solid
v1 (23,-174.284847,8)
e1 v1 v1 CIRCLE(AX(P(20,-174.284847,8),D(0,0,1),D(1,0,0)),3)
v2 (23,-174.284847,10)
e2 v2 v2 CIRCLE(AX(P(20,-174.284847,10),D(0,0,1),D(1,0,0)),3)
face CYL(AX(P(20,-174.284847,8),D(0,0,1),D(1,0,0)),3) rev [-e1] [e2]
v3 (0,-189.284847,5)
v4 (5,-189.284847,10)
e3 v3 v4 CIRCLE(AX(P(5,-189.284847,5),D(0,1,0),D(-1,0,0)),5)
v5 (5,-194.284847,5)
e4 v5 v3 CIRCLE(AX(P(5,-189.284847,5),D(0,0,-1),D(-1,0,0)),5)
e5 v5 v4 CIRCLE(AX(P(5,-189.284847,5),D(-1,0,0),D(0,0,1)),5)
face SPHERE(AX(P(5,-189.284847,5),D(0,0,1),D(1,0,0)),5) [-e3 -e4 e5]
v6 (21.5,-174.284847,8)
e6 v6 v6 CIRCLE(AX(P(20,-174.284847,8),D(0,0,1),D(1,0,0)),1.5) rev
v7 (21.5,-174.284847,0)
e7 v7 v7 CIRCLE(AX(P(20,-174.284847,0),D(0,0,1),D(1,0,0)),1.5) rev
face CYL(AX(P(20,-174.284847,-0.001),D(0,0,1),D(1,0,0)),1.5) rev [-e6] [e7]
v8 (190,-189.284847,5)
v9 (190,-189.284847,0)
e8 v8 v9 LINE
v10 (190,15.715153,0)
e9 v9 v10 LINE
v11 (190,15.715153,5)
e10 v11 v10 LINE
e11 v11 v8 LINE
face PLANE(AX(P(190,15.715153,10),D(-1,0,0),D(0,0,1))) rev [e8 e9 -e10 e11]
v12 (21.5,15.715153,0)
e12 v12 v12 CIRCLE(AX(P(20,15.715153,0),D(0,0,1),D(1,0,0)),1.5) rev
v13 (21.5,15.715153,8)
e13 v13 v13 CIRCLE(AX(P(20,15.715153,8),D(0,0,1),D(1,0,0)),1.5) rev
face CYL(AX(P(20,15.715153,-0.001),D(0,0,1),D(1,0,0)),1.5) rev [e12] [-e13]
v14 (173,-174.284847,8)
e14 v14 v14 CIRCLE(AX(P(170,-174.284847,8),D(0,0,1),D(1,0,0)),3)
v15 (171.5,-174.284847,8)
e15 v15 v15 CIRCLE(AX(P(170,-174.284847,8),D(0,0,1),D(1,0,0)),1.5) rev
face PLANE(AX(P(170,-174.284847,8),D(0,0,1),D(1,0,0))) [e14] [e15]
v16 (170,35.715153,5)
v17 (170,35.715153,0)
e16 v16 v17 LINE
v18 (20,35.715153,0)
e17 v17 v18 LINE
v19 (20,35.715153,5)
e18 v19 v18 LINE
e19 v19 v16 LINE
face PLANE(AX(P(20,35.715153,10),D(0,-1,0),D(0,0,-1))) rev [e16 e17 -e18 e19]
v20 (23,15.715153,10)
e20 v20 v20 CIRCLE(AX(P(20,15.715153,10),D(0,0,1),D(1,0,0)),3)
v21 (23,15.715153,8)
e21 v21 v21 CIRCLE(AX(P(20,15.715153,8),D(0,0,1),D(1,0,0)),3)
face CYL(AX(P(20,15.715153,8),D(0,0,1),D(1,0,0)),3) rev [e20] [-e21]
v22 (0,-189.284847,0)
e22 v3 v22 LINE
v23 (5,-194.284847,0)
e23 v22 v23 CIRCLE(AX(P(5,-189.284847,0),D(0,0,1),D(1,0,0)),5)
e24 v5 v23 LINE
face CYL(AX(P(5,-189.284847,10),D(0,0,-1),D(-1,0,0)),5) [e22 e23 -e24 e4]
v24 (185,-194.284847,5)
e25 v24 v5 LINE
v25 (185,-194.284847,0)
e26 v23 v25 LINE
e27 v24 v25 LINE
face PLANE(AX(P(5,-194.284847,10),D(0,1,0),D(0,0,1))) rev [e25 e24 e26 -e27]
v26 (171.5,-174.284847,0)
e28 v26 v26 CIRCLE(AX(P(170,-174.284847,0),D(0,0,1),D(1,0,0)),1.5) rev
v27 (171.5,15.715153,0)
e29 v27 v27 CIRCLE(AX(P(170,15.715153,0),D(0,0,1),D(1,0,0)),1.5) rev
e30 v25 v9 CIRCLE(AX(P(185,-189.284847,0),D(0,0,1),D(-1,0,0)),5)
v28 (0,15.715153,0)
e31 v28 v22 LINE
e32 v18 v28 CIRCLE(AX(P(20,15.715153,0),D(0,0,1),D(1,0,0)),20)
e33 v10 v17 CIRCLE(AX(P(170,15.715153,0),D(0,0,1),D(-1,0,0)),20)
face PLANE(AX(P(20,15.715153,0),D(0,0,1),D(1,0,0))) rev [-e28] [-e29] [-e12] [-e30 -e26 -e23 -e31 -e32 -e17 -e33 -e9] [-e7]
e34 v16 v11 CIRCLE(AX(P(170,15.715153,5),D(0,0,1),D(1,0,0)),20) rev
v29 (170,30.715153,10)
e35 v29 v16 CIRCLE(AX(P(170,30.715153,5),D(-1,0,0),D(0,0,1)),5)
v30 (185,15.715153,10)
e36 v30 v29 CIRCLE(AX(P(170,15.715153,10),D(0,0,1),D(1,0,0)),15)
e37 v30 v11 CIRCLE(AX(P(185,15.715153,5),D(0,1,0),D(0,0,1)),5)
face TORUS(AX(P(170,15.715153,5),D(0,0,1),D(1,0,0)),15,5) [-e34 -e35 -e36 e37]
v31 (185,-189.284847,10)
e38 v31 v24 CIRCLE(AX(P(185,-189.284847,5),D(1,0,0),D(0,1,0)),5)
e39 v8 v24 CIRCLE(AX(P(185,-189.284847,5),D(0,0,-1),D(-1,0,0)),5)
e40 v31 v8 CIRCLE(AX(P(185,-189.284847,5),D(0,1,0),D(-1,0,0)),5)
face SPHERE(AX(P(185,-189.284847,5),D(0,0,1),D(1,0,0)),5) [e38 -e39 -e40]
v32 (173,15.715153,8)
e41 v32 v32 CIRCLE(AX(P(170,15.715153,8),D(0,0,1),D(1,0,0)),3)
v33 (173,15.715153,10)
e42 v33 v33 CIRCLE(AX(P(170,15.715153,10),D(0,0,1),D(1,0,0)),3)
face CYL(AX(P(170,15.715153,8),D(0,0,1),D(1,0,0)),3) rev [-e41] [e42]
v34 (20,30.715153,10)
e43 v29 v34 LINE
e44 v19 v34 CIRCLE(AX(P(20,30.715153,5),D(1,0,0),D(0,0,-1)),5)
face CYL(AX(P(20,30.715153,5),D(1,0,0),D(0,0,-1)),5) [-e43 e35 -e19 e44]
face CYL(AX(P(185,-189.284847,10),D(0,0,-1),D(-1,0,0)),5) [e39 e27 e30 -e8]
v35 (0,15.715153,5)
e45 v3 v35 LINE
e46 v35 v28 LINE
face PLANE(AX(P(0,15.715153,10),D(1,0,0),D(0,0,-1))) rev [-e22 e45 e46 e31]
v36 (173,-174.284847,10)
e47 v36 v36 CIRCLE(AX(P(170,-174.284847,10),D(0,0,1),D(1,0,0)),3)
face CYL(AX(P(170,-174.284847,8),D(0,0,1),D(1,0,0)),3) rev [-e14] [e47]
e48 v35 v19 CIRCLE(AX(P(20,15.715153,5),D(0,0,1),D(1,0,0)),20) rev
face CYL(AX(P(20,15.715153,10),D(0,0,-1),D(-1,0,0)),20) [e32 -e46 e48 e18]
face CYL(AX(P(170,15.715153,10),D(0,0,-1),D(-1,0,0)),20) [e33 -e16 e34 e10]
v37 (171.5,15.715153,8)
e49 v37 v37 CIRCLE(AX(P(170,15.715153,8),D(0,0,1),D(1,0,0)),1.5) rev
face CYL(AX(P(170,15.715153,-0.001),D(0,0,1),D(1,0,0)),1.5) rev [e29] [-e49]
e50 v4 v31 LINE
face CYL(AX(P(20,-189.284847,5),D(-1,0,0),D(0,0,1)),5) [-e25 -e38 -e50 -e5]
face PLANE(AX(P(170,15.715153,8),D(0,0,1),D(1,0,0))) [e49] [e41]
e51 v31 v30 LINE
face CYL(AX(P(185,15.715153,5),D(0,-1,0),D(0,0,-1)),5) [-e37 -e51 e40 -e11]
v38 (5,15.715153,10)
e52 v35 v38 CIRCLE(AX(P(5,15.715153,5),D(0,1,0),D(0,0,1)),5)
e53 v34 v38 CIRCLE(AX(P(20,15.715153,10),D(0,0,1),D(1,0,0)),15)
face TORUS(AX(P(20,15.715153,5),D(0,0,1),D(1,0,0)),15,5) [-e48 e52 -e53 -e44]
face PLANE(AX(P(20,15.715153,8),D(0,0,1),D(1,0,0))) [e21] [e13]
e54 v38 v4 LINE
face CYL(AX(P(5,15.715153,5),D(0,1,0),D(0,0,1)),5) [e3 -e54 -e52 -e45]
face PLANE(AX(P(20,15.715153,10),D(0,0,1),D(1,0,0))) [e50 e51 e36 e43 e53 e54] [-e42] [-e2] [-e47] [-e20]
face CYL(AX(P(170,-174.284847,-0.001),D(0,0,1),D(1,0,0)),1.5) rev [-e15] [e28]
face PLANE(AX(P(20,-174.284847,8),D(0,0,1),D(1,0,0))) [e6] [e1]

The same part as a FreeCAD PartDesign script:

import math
import FreeCAD as App
import Part
import Sketcher
from FreeCAD import Vector
Q = App.Units.Quantity


def edges_at(feature, points):
    """Names of the edges that pass closest to the given points."""
    edges = feature.Shape.Edges
    near = lambda p: min(range(len(edges)), key=lambda i: edges[i].distToShape(Part.Vertex(*p))[0])
    return sorted({f"Edge{near(p) + 1}" for p in points})

doc = App.newDocument("Part")
body = doc.addObject("PartDesign::Body", "Body")

sketch1 = body.newObject("Sketcher::SketchObject", "Sketch")
sketch1.AttachmentSupport = (doc.getObject("XY_Plane"), [""])
sketch1.MapMode = "FlatFace"
sketch1.addGeometry([
    Part.LineSegment(Vector(170, 35.715153, 0), Vector(20, 35.715153, 0)),
    Part.ArcOfCircle(Part.Circle(Vector(20, 15.715153, 0), Vector(0, 0, 1), 20), math.radians(90), math.radians(180)),
    Part.LineSegment(Vector(0, 15.715153, 0), Vector(0, -189.284847, 0)),
    Part.ArcOfCircle(Part.Circle(Vector(5, -189.284847, 0), Vector(0, 0, 1), 5), math.radians(180), math.radians(270)),
    Part.LineSegment(Vector(5, -194.284847, 0), Vector(185, -194.284847, 0)),
    Part.ArcOfCircle(Part.Circle(Vector(185, -189.284847, 0), Vector(0, 0, 1), 5), math.radians(-90), math.radians(0)),
    Part.LineSegment(Vector(190, -189.284847, 0), Vector(190, 15.715153, 0)),
    Part.ArcOfCircle(Part.Circle(Vector(170, 15.715153, 0), Vector(0, 0, 1), 20), math.radians(0), math.radians(90)),
], False)
sketch1.addConstraint([
    Sketcher.Constraint("Tangent", 0, 2, 1, 1),
    Sketcher.Constraint("Tangent", 1, 2, 2, 1),
    Sketcher.Constraint("Tangent", 2, 2, 3, 1),
    Sketcher.Constraint("Tangent", 3, 2, 4, 1),
    Sketcher.Constraint("Tangent", 4, 2, 5, 1),
    Sketcher.Constraint("Tangent", 5, 2, 6, 1),
    Sketcher.Constraint("Tangent", 6, 2, 7, 1),
    Sketcher.Constraint("Tangent", 7, 2, 0, 1),
    Sketcher.Constraint("Horizontal", 0),
    Sketcher.Constraint("Vertical", 2),
    Sketcher.Constraint("Horizontal", 4),
    Sketcher.Constraint("Vertical", 6),
    Sketcher.Constraint("Equal", 3, 5),
    Sketcher.Constraint("Equal", 1, 7),
    Sketcher.Constraint("PointOnObject", 1, 2, -2),
    Sketcher.Constraint("Radius", 1, Q("20 mm")),
    Sketcher.Constraint("Radius", 3, Q("5 mm")),
    Sketcher.Constraint("DistanceX", 0, 2, 0, 1, Q("150 mm")),
    Sketcher.Constraint("DistanceY", 2, 2, 2, 1, Q("205 mm")),
    Sketcher.Constraint("DistanceY", -1, 1, 1, 3, Q("15.715153 mm")),
])
pad1 = body.newObject("PartDesign::Pad", "Pad")
pad1.Profile = sketch1
pad1.Length = 10
doc.recompute()

fillet = body.newObject("PartDesign::Fillet", "Fillet")
fillet.Base = (pad1, edges_at(pad1, [
    (1.464, -192.82, 10),
    (95, -194.285, 10),
    (188.536, -192.82, 10),
    (190, -86.785, 10),
    (184.142, 29.857, 10),
    (95, 35.715, 10),
    (5.858, 29.857, 10),
    (0, -86.785, 10),
]))
fillet.Radius = 5

sketch2 = body.newObject("Sketcher::SketchObject", "Sketch001")
sketch2.AttachmentSupport = (doc.getObject("XY_Plane"), [""])
sketch2.MapMode = "FlatFace"
sketch2.AttachmentOffset = App.Placement(Vector(0, 0, 10), App.Rotation())
sketch2.addGeometry(Part.Circle(Vector(20, -174.284847, 0), Vector(0, 0, 1), 1.5), False)
sketch2.addConstraint([
    Sketcher.Constraint("Diameter", 0, Q("3 mm")),
    Sketcher.Constraint("DistanceX", -1, 1, 0, 3, Q("20 mm")),
    Sketcher.Constraint("DistanceY", 0, 3, -1, 1, Q("174.284847 mm")),
])
pocket1 = body.newObject("PartDesign::Pocket", "Pocket")
pocket1.Profile = sketch2
pocket1.Type = "UpToFirst"

sketch3 = body.newObject("Sketcher::SketchObject", "Sketch002")
sketch3.AttachmentSupport = (doc.getObject("XY_Plane"), [""])
sketch3.MapMode = "FlatFace"
sketch3.AttachmentOffset = App.Placement(Vector(0, 0, 10), App.Rotation())
sketch3.addGeometry(Part.Circle(Vector(170, -174.284847, 0), Vector(0, 0, 1), 1.5), False)
sketch3.addConstraint([
    Sketcher.Constraint("Diameter", 0, Q("3 mm")),
    Sketcher.Constraint("DistanceX", -1, 1, 0, 3, Q("170 mm")),
    Sketcher.Constraint("DistanceY", 0, 3, -1, 1, Q("174.284847 mm")),
])
pocket2 = body.newObject("PartDesign::Pocket", "Pocket001")
pocket2.Profile = sketch3
pocket2.Type = "UpToFirst"

sketch4 = body.newObject("Sketcher::SketchObject", "Sketch003")
sketch4.AttachmentSupport = (doc.getObject("XY_Plane"), [""])
sketch4.MapMode = "FlatFace"
sketch4.AttachmentOffset = App.Placement(Vector(0, 0, 10), App.Rotation())
sketch4.addGeometry(Part.Circle(Vector(170, 15.715153, 0), Vector(0, 0, 1), 1.5), False)
sketch4.addConstraint([
    Sketcher.Constraint("Diameter", 0, Q("3 mm")),
    Sketcher.Constraint("DistanceX", -1, 1, 0, 3, Q("170 mm")),
    Sketcher.Constraint("DistanceY", -1, 1, 0, 3, Q("15.715153 mm")),
])
pocket3 = body.newObject("PartDesign::Pocket", "Pocket002")
pocket3.Profile = sketch4
pocket3.Type = "UpToFirst"

sketch5 = body.newObject("Sketcher::SketchObject", "Sketch004")
sketch5.AttachmentSupport = (doc.getObject("XY_Plane"), [""])
sketch5.MapMode = "FlatFace"
sketch5.AttachmentOffset = App.Placement(Vector(0, 0, 10), App.Rotation())
sketch5.addGeometry(Part.Circle(Vector(20, 15.715153, 0), Vector(0, 0, 1), 1.5), False)
sketch5.addConstraint([
    Sketcher.Constraint("Diameter", 0, Q("3 mm")),
    Sketcher.Constraint("DistanceX", -1, 1, 0, 3, Q("20 mm")),
    Sketcher.Constraint("DistanceY", -1, 1, 0, 3, Q("15.715153 mm")),
])
pocket4 = body.newObject("PartDesign::Pocket", "Pocket003")
pocket4.Profile = sketch5
pocket4.Type = "UpToFirst"

sketch6 = body.newObject("Sketcher::SketchObject", "Sketch005")
sketch6.AttachmentSupport = (doc.getObject("XY_Plane"), [""])
sketch6.MapMode = "FlatFace"
sketch6.AttachmentOffset = App.Placement(Vector(0, 0, 10), App.Rotation())
sketch6.addGeometry([
    Part.Circle(Vector(20, 15.715153, 0), Vector(0, 0, 1), 3),
    Part.Circle(Vector(170, 15.715153, 0), Vector(0, 0, 1), 3),
    Part.Circle(Vector(170, -174.284847, 0), Vector(0, 0, 1), 3),
    Part.Circle(Vector(20, -174.284847, 0), Vector(0, 0, 1), 3),
], False)
sketch6.addConstraint([
    Sketcher.Constraint("Equal", 0, 1),
    Sketcher.Constraint("Equal", 1, 2),
    Sketcher.Constraint("Equal", 2, 3),
    Sketcher.Constraint("Horizontal", 0, 3, 1, 3),
    Sketcher.Constraint("Horizontal", 2, 3, 3, 3),
    Sketcher.Constraint("Vertical", 1, 3, 2, 3),
    Sketcher.Constraint("Vertical", 0, 3, 3, 3),
    Sketcher.Constraint("Diameter", 0, Q("6 mm")),
    Sketcher.Constraint("DistanceX", -1, 1, 0, 3, Q("20 mm")),
    Sketcher.Constraint("DistanceX", -1, 1, 1, 3, Q("170 mm")),
    Sketcher.Constraint("DistanceY", 2, 3, 1, 3, Q("190 mm")),
    Sketcher.Constraint("DistanceY", -1, 1, 0, 3, Q("15.715153 mm")),
])
pocket5 = body.newObject("PartDesign::Pocket", "Pocket004")
pocket5.Profile = sketch6
pocket5.Length = 2

doc.recompute()
